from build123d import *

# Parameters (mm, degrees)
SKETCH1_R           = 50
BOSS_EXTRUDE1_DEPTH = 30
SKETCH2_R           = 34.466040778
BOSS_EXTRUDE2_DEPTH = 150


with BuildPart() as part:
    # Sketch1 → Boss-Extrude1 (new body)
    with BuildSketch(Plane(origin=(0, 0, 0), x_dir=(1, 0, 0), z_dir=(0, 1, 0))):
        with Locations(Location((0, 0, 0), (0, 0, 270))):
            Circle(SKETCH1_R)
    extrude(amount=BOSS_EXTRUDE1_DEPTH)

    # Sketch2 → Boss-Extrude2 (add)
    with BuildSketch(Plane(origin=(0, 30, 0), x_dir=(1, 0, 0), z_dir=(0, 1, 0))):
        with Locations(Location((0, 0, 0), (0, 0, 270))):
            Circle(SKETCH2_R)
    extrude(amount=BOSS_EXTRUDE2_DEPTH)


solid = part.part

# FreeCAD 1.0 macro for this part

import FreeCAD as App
import Part
import Sketcher

V = App.Vector

doc = App.newDocument("Part")
body = doc.addObject("PartDesign::Body", "Body")

sketch1 = body.newObject("Sketcher::SketchObject", "Sketch")
sketch1.AttachmentSupport = (doc.getObject("XZ_Plane"), [""])
sketch1.MapMode = "FlatFace"
sketch1.addGeometry(Part.Circle(V(0, 0, 0), V(0, 0, 1), 50), False)
sketch1.addConstraint([
    Sketcher.Constraint("Coincident", 0, 3, -1, 1),
    Sketcher.Constraint("Diameter", 0, 100.0),
])
pad1 = body.newObject("PartDesign::Pad", "Pad")
pad1.Profile = sketch1
pad1.Length = 30
pad1.Reversed = True

sketch2 = body.newObject("Sketcher::SketchObject", "Sketch001")
sketch2.AttachmentSupport = (doc.getObject("XZ_Plane"), [""])
sketch2.MapMode = "FlatFace"
sketch2.AttachmentOffset = App.Placement(V(0, 0, -30), App.Rotation())
sketch2.addGeometry(Part.Circle(V(0, 0, 0), V(0, 0, 1), 34), False)
sketch2.addConstraint([
    Sketcher.Constraint("Coincident", 0, 3, -1, 1),
    Sketcher.Constraint("Diameter", 0, 68.932082),
])
pad2 = body.newObject("PartDesign::Pad", "Pad001")
pad2.Profile = sketch2
pad2.Length = 150
pad2.Reversed = True

doc.recompute()
